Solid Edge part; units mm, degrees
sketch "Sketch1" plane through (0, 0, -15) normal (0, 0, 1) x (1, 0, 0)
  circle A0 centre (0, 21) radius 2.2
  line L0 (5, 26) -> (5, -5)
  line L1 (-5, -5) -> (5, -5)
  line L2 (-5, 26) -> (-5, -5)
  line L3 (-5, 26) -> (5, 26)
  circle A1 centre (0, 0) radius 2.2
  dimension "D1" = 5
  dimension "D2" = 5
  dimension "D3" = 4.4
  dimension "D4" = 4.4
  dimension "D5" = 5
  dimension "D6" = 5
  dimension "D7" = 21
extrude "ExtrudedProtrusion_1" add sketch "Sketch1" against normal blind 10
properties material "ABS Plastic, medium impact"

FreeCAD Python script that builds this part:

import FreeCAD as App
import Part
import Sketcher

V = App.Vector


def add_polygon(sketch, points):
    """Adds a closed chain of lines whose ends are joined by coincident constraints."""
    first, n = sketch.GeometryCount, len(points)
    for a, b in zip(points, points[1:] + points[:1]):
        sketch.addGeometry(Part.LineSegment(App.Vector(*a, 0), App.Vector(*b, 0)), False)
    for i in range(n):
        sketch.addConstraint(Sketcher.Constraint("Coincident", first + i, 2, first + (i + 1) % n, 1))

doc = App.newDocument("Part")
body = doc.addObject("PartDesign::Body", "Body")

sketch1 = doc.addObject("Sketcher::SketchObject", "Sketch")
body.addObject(sketch1)
sketch1.AttachmentSupport = (doc.XY_Plane, [""])
sketch1.MapMode = "FlatFace"
sketch1.AttachmentOffset = App.Placement(V(0, 0, -15), App.Rotation())
add_polygon(sketch1, [(5, -5), (5, 26), (-5, 26), (-5, -5)])
sketch1.addGeometry(Part.Circle(V(0, 0, 0), V(0, 0, 1), 2.2), False)
sketch1.addGeometry(Part.Circle(V(0, 21, 0), V(0, 0, 1), 2.2), False)
sketch1.addConstraint(Sketcher.Constraint("Vertical", 0))
sketch1.addConstraint(Sketcher.Constraint("Horizontal", 1))
sketch1.addConstraint(Sketcher.Constraint("Vertical", 2))
sketch1.addConstraint(Sketcher.Constraint("Horizontal", 3))
sketch1.addConstraint(Sketcher.Constraint("Coincident", 4, 3, -1, 1))
sketch1.addConstraint(Sketcher.Constraint("Equal", 4, 5))
sketch1.addConstraint(Sketcher.Constraint("PointOnObject", 5, 3, -2))
sketch1.addConstraint(Sketcher.Constraint("Diameter", 4, 4.4))
sketch1.addConstraint(Sketcher.Constraint("DistanceX", 1, 2, 1, 1, 10.0))
sketch1.addConstraint(Sketcher.Constraint("DistanceY", 0, 1, 0, 2, 31.0))
sketch1.addConstraint(Sketcher.Constraint("DistanceY", -1, 1, 5, 3, 21.0))
sketch1.addConstraint(Sketcher.Constraint("DistanceX", -1, 1, 0, 2, 5.0))
sketch1.addConstraint(Sketcher.Constraint("DistanceY", -1, 1, 0, 2, 26.0))
pad1 = doc.addObject("PartDesign::Pad", "Pad")
body.addObject(pad1)
pad1.Profile = sketch1
pad1.Length = 10
pad1.Reversed = True

doc.recompute()
